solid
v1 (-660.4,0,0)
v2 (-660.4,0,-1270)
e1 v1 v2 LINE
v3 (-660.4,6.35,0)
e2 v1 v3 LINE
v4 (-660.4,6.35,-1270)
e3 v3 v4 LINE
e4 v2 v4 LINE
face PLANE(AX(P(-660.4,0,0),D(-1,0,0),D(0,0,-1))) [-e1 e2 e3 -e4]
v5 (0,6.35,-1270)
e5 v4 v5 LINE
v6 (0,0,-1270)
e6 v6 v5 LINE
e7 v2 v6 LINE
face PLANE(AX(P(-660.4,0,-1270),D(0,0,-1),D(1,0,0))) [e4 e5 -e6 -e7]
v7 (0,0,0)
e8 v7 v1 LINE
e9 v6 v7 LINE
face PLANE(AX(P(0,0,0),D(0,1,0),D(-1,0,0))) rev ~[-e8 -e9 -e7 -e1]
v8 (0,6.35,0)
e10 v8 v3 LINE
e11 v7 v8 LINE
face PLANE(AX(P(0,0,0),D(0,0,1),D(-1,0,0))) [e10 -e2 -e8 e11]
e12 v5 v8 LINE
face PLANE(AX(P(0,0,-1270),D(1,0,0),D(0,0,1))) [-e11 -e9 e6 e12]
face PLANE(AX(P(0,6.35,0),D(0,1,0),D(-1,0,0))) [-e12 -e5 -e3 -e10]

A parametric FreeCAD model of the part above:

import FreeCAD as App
import Part
import Sketcher

V = App.Vector
Q = App.Units.Quantity

doc = App.newDocument("Part")
body = doc.addObject("PartDesign::Body", "Body")

# Sketch on XZ plane
sketch1 = doc.addObject("Sketcher::SketchObject", "Sketch")
body.addObject(sketch1)
sketch1.AttachmentSupport = (doc.XZ_Plane, [""])
sketch1.MapMode = "FlatFace"
sketch1.addGeometry([
    Part.LineSegment(V(-660.4, 0, 0), V(0, 0, 0)),
    Part.LineSegment(V(0, 0, 0), V(0, -1270, 0)),
    Part.LineSegment(V(0, -1270, 0), V(-660.4, -1270, 0)),
    Part.LineSegment(V(-660.4, -1270, 0), V(-660.4, 0, 0)),
], False)
sketch1.addConstraint([
    Sketcher.Constraint("Coincident", 0, 2, 1, 1),
    Sketcher.Constraint("Coincident", 1, 2, 2, 1),
    Sketcher.Constraint("Coincident", 2, 2, 3, 1),
    Sketcher.Constraint("Coincident", 3, 2, 0, 1),
    Sketcher.Constraint("Horizontal", 0),
    Sketcher.Constraint("Vertical", 1),
    Sketcher.Constraint("Horizontal", 2),
    Sketcher.Constraint("Vertical", 3),
    Sketcher.Constraint("Coincident", 0, 2, -1, 1),
    Sketcher.Constraint("DistanceX", 0, 1, 0, 2, Q("26 in")),
    Sketcher.Constraint("DistanceY", 1, 2, 1, 1, Q("50 in")),
])
pad1 = doc.addObject("PartDesign::Pad", "Pad")
body.addObject(pad1)
pad1.Profile = sketch1
pad1.Length = Q("0.25 in")
pad1.Reversed = True

doc.recompute()
